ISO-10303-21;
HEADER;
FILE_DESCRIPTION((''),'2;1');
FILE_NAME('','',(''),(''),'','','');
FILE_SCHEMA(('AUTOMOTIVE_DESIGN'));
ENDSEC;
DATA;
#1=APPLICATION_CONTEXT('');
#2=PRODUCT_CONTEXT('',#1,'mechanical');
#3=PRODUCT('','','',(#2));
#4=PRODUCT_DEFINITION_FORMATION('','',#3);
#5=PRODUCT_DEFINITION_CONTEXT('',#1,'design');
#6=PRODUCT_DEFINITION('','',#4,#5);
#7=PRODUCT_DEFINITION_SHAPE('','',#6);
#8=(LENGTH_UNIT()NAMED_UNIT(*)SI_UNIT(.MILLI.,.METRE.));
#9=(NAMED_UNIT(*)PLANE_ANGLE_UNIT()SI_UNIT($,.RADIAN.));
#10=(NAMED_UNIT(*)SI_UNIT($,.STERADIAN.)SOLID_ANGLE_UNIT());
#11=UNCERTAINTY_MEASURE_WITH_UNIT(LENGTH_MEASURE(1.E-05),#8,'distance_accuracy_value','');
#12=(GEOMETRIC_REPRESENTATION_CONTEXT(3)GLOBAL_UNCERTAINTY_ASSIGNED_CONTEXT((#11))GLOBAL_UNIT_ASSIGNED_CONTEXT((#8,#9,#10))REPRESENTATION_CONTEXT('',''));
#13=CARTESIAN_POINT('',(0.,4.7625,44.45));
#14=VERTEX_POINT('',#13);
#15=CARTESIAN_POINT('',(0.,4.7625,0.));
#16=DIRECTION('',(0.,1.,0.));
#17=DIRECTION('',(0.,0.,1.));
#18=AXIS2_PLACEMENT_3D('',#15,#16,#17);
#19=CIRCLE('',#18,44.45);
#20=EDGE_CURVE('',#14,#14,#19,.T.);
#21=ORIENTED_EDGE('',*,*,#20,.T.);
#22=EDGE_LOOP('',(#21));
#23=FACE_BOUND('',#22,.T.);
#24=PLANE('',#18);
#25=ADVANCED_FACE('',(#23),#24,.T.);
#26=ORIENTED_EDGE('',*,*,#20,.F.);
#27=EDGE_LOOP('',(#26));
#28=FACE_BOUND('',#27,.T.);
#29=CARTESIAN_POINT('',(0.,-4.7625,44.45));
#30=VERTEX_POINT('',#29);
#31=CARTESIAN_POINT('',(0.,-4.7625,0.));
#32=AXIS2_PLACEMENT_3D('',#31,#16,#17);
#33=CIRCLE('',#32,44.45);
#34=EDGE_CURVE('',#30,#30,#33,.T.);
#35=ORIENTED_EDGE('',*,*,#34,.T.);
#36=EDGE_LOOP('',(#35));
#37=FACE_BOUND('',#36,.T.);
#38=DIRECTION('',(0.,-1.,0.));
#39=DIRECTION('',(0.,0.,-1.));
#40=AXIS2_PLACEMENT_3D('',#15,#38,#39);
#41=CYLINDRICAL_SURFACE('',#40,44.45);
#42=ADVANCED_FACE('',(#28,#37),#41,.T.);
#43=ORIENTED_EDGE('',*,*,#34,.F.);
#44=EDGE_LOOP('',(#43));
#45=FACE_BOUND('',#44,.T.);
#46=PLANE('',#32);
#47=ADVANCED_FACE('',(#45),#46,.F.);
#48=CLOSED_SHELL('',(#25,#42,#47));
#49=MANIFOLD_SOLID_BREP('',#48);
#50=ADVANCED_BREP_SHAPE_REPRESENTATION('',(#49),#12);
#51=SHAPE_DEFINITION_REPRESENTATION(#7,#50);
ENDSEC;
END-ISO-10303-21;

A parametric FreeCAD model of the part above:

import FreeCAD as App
import Part
import Sketcher

V = App.Vector
Q = App.Units.Quantity

doc = App.newDocument("Part")
body = doc.addObject("PartDesign::Body", "Body")

# Sketch on XZ plane
sketch1 = doc.addObject("Sketcher::SketchObject", "Sketch")
body.addObject(sketch1)
sketch1.AttachmentSupport = (doc.XZ_Plane, [""])
sketch1.MapMode = "FlatFace"
sketch1.addGeometry(Part.Circle(V(0, 0, 0), V(0, 0, 1), 44), False)
sketch1.addConstraint([
    Sketcher.Constraint("Coincident", 0, 3, -1, 1),
    Sketcher.Constraint("Diameter", 0, Q("3.5 in")),
])
pad1 = doc.addObject("PartDesign::Pad", "Pad")
body.addObject(pad1)
pad1.Profile = sketch1
pad1.Length = Q("0.375 in")
pad1.Midplane = True

doc.recompute()
